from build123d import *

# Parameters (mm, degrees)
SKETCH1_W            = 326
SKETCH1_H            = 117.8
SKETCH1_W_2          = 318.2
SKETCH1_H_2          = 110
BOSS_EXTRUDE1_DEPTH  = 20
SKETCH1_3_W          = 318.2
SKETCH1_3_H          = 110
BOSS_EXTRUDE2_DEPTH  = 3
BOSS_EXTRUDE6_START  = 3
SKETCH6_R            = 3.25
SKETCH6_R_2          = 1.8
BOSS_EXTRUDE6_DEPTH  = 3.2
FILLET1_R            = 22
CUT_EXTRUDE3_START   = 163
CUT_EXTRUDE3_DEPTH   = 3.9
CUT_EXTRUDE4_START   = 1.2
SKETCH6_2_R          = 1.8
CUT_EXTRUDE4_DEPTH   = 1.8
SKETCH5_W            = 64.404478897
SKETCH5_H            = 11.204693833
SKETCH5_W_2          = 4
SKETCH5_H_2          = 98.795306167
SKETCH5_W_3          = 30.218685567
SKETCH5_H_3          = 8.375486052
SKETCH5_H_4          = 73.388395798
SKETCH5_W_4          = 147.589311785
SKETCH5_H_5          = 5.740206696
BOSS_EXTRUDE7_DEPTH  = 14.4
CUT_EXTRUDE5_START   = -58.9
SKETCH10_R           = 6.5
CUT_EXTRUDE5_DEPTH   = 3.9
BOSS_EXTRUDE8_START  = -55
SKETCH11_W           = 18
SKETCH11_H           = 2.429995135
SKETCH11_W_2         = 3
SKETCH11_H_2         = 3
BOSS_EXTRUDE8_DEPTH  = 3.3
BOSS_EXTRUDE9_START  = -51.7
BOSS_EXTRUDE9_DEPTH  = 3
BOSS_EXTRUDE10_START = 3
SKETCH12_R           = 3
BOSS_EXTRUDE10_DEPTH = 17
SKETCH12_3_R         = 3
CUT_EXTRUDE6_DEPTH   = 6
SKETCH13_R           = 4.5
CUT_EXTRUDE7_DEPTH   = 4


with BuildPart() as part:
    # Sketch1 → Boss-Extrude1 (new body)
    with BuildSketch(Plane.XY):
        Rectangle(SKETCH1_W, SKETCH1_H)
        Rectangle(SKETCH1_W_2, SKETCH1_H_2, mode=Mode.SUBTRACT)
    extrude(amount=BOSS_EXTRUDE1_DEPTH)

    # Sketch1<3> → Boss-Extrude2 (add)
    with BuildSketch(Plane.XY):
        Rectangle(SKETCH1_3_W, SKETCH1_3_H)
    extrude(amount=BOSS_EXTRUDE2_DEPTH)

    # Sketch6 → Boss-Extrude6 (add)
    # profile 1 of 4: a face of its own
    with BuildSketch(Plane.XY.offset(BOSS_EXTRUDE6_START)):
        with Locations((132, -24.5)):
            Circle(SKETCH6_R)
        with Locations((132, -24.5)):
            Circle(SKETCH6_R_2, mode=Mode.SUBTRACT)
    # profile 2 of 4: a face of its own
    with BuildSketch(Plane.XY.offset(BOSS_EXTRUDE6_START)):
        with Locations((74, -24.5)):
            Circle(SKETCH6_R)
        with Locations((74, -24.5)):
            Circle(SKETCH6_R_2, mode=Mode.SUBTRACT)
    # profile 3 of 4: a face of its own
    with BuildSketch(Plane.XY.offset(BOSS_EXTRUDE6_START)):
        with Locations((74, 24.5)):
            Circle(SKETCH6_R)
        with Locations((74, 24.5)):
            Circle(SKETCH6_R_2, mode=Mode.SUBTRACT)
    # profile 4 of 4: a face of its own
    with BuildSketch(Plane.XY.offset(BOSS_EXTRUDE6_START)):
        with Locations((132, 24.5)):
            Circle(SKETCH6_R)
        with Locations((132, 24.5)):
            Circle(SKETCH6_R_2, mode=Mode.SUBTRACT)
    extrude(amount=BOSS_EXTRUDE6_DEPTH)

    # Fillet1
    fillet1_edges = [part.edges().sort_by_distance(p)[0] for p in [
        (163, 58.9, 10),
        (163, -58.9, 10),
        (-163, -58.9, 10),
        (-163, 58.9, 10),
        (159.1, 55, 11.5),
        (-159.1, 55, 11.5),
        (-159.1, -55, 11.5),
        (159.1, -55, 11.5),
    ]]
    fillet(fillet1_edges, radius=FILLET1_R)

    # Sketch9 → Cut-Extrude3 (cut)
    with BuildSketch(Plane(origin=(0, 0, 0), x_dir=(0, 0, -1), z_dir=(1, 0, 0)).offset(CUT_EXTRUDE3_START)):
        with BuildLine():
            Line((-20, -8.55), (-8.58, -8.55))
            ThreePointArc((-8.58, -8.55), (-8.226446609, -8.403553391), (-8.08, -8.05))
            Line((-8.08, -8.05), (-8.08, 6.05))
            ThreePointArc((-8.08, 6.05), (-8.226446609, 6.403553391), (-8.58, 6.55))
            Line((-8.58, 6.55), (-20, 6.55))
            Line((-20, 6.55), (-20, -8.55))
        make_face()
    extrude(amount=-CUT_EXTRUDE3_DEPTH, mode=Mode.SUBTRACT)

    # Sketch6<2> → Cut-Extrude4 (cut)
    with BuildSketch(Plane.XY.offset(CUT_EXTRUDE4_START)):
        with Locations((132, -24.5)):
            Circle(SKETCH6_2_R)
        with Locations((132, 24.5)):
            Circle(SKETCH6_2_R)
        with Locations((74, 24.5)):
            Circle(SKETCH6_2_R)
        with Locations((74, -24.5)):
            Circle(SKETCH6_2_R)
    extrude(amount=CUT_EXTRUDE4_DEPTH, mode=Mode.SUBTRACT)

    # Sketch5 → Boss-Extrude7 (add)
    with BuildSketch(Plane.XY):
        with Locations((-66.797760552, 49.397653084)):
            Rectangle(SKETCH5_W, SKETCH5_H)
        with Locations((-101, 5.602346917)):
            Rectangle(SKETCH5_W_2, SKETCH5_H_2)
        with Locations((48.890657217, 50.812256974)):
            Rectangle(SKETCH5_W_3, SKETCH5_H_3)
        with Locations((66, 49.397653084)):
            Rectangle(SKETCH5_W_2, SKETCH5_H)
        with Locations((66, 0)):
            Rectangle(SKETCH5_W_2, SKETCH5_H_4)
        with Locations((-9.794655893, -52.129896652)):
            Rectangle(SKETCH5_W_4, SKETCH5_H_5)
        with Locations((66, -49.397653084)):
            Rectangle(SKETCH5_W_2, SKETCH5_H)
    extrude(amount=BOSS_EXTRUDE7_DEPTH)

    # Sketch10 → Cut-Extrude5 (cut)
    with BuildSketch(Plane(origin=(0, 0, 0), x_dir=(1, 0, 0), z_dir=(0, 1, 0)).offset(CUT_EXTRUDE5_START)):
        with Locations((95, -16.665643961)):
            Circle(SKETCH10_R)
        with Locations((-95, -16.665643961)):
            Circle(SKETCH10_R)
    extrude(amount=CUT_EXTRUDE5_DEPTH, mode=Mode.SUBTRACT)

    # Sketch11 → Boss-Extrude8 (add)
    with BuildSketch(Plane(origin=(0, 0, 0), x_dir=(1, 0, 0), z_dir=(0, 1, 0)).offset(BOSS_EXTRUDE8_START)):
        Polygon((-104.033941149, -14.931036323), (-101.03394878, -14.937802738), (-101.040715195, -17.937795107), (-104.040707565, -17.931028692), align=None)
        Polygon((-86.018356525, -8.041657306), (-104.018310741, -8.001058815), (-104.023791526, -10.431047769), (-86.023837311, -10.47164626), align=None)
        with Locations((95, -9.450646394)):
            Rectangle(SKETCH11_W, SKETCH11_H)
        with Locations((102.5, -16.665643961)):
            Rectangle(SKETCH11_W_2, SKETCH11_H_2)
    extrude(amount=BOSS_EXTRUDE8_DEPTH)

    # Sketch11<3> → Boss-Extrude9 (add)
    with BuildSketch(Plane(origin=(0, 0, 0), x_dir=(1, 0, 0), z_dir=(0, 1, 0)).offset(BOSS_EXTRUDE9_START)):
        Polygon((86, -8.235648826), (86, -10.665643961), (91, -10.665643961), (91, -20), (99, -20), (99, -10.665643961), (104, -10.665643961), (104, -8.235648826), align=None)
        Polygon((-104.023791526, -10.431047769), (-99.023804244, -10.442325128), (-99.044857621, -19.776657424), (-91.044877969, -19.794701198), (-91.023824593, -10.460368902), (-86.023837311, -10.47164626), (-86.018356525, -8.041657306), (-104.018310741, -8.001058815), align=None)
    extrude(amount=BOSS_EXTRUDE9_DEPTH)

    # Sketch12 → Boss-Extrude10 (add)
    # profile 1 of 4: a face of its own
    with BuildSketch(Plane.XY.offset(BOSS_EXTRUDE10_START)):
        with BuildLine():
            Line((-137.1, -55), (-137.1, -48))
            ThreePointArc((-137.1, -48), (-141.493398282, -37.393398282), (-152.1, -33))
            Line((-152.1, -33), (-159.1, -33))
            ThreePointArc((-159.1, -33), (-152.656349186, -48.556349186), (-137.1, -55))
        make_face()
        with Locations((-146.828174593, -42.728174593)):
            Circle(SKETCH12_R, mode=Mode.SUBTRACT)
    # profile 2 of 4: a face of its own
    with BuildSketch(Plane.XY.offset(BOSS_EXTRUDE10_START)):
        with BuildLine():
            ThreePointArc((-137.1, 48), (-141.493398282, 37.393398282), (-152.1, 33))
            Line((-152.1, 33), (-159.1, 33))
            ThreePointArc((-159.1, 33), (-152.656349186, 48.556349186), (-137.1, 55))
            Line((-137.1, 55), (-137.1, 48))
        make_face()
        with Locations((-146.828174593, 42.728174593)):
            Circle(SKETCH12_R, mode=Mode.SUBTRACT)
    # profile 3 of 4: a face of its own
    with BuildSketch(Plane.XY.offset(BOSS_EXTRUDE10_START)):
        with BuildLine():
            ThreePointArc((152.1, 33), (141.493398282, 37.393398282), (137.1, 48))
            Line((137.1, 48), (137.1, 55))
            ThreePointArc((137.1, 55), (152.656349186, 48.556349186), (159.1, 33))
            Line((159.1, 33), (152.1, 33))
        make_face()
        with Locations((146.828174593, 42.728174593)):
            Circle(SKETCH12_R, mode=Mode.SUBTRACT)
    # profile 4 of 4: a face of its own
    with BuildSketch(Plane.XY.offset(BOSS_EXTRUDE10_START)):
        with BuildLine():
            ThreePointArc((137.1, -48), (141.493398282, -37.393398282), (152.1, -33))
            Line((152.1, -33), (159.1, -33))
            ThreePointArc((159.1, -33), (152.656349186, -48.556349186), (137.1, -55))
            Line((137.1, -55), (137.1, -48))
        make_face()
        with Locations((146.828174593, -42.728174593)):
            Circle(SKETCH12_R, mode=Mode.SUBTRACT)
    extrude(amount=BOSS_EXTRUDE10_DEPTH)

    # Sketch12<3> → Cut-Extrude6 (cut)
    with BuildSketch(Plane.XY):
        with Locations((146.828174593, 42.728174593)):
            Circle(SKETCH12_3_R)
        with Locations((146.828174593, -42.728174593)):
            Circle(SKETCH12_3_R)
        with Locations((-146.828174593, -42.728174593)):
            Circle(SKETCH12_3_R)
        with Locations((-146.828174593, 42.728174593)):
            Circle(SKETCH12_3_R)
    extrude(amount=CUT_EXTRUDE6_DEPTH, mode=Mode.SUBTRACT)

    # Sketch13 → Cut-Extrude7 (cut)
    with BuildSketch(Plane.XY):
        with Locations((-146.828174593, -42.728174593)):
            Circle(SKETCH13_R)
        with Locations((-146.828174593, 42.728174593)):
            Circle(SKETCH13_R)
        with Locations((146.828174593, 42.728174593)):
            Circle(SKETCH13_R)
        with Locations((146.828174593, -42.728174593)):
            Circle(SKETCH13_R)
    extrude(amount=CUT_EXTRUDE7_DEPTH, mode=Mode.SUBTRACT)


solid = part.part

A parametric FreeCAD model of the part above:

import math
import FreeCAD as App
import Part
import Sketcher
Q = App.Units.Quantity


def edges_at(feature, points):
    """Names of the edges that pass closest to the given points."""
    edges = feature.Shape.Edges
    near = lambda p: min(range(len(edges)), key=lambda i: edges[i].distToShape(Part.Vertex(*p))[0])
    return sorted({f"Edge{near(p) + 1}" for p in points})


def add_polygon(sketch, points):
    """Adds a closed chain of lines whose ends are joined by coincident constraints."""
    first, n = sketch.GeometryCount, len(points)
    for a, b in zip(points, points[1:] + points[:1]):
        sketch.addGeometry(Part.LineSegment(App.Vector(*a, 0), App.Vector(*b, 0)), False)
    for i in range(n):
        sketch.addConstraint(Sketcher.Constraint("Coincident", first + i, 2, first + (i + 1) % n, 1))

doc = App.newDocument("Part")
body = doc.addObject("PartDesign::Body", "Body")

# Sketch on XY plane
sketch1 = body.newObject("Sketcher::SketchObject", "Sketch")
sketch1.AttachmentSupport = (doc.getObject("XY_Plane"), [""])
sketch1.MapMode = "FlatFace"
add_polygon(sketch1, [(-163, 59), (-163, -59), (163, -59), (163, 59)])  # lines 0-3
add_polygon(sketch1, [(159, -55), (-159, -55), (-159, 55), (159, 55)])  # lines 4-7
sketch1.addConstraint(Sketcher.Constraint("Vertical", 0))
sketch1.addConstraint(Sketcher.Constraint("Horizontal", 1))
sketch1.addConstraint(Sketcher.Constraint("Vertical", 2))
sketch1.addConstraint(Sketcher.Constraint("Horizontal", 3))
sketch1.addConstraint(Sketcher.Constraint("Horizontal", 4))
sketch1.addConstraint(Sketcher.Constraint("Vertical", 5))
sketch1.addConstraint(Sketcher.Constraint("Horizontal", 6))
sketch1.addConstraint(Sketcher.Constraint("Vertical", 7))
sketch1.addConstraint(Sketcher.Constraint("Symmetric", 0, 2, 2, 2, -1, 1))
sketch1.addConstraint(Sketcher.Constraint("Symmetric", 4, 2, 6, 2, -1, 1))
sketch1.addConstraint(Sketcher.Constraint("DistanceX", 1, 1, 1, 2, Q("326 mm")))
sketch1.addConstraint(Sketcher.Constraint("DistanceY", 5, 1, 5, 2, Q("110 mm")))
sketch1.addConstraint(Sketcher.Constraint("DistanceX", 4, 2, 4, 1, Q("318.2 mm")))
sketch1.addConstraint(Sketcher.Constraint("DistanceY", 0, 2, 0, 1, Q("117.8 mm")))
pad1 = body.newObject("PartDesign::Pad", "Pad")
pad1.Profile = sketch1
pad1.Length = 20

# Sketch on XY plane
sketch2 = body.newObject("Sketcher::SketchObject", "Sketch001")
sketch2.AttachmentSupport = (doc.getObject("XY_Plane"), [""])
sketch2.MapMode = "FlatFace"
add_polygon(sketch2, [(-159, 55), (-159, -55), (159, -55), (159, 55)])  # lines 0-3
sketch2.addConstraint(Sketcher.Constraint("Vertical", 0))
sketch2.addConstraint(Sketcher.Constraint("Horizontal", 1))
sketch2.addConstraint(Sketcher.Constraint("Vertical", 2))
sketch2.addConstraint(Sketcher.Constraint("Horizontal", 3))
sketch2.addConstraint(Sketcher.Constraint("Symmetric", 0, 2, 2, 2, -1, 1))
sketch2.addConstraint(Sketcher.Constraint("DistanceY", 0, 2, 0, 1, Q("110 mm")))
sketch2.addConstraint(Sketcher.Constraint("DistanceX", 1, 1, 1, 2, Q("318.2 mm")))
pad2 = body.newObject("PartDesign::Pad", "Pad001")
pad2.Profile = sketch2
pad2.Length = 3

# Sketch on XY plane
sketch3 = body.newObject("Sketcher::SketchObject", "Sketch002")
sketch3.AttachmentSupport = (doc.getObject("XY_Plane"), [""])
sketch3.MapMode = "FlatFace"
sketch3.AttachmentOffset = App.Placement(App.Vector(0, 0, 3), App.Rotation())
sketch3.addGeometry(Part.Circle(App.Vector(132, -24.5, 0), App.Vector(0, 0, 1), 3.2), False)
sketch3.addGeometry(Part.Circle(App.Vector(132, -24.5, 0), App.Vector(0, 0, 1), 1.8), False)
sketch3.addGeometry(Part.Circle(App.Vector(74, -24.5, 0), App.Vector(0, 0, 1), 3.2), False)
sketch3.addGeometry(Part.Circle(App.Vector(74, -24.5, 0), App.Vector(0, 0, 1), 1.8), False)
sketch3.addGeometry(Part.Circle(App.Vector(74, 24.5, 0), App.Vector(0, 0, 1), 3.2), False)
sketch3.addGeometry(Part.Circle(App.Vector(74, 24.5, 0), App.Vector(0, 0, 1), 1.8), False)
sketch3.addGeometry(Part.Circle(App.Vector(132, 24.5, 0), App.Vector(0, 0, 1), 3.2), False)
sketch3.addGeometry(Part.Circle(App.Vector(132, 24.5, 0), App.Vector(0, 0, 1), 1.8), False)
sketch3.addConstraint(Sketcher.Constraint("Coincident", 1, 3, 0, 3))
sketch3.addConstraint(Sketcher.Constraint("Coincident", 3, 3, 2, 3))
sketch3.addConstraint(Sketcher.Constraint("Coincident", 5, 3, 4, 3))
sketch3.addConstraint(Sketcher.Constraint("Coincident", 7, 3, 6, 3))
sketch3.addConstraint(Sketcher.Constraint("Equal", 0, 2))
sketch3.addConstraint(Sketcher.Constraint("Equal", 1, 3))
sketch3.addConstraint(Sketcher.Constraint("Equal", 2, 4))
sketch3.addConstraint(Sketcher.Constraint("Equal", 3, 5))
sketch3.addConstraint(Sketcher.Constraint("Equal", 4, 6))
sketch3.addConstraint(Sketcher.Constraint("Equal", 5, 7))
sketch3.addConstraint(Sketcher.Constraint("Symmetric", 2, 3, 4, 3, -1))
sketch3.addConstraint(Sketcher.Constraint("Symmetric", 0, 3, 6, 3, -1))
sketch3.addConstraint(Sketcher.Constraint("Horizontal", 1, 3, 2, 3))
sketch3.addConstraint(Sketcher.Constraint("Diameter", 0, Q("6.5 mm")))
sketch3.addConstraint(Sketcher.Constraint("Diameter", 1, Q("3.6 mm")))
sketch3.addConstraint(Sketcher.Constraint("DistanceX", -1, 1, 0, 3, Q("132 mm")))
sketch3.addConstraint(Sketcher.Constraint("DistanceX", -1, 1, 2, 3, Q("74 mm")))
sketch3.addConstraint(Sketcher.Constraint("DistanceY", 2, 3, 4, 3, Q("49 mm")))
pad3 = body.newObject("PartDesign::Pad", "Pad002")
pad3.Profile = sketch3
pad3.Length = 3.2
doc.recompute()

fillet = body.newObject("PartDesign::Fillet", "Fillet")
fillet.Base = (pad3, edges_at(pad3, [
    (163, 58.9, 10),
    (163, -58.9, 10),
    (-163, -58.9, 10),
    (-163, 58.9, 10),
    (159.1, 55, 11.5),
    (-159.1, 55, 11.5),
    (-159.1, -55, 11.5),
    (159.1, -55, 11.5),
]))
fillet.Radius = 22

# Sketch on YZ plane
sketch4 = body.newObject("Sketcher::SketchObject", "Sketch003")
sketch4.AttachmentSupport = (doc.getObject("YZ_Plane"), [""])
sketch4.MapMode = "FlatFace"
sketch4.AttachmentOffset = App.Placement(App.Vector(0, 0, 163), App.Rotation())
sketch4.addGeometry(Part.LineSegment(App.Vector(-8.55, 20, 0), App.Vector(-8.55, 8.58, 0)), False)
sketch4.addGeometry(Part.ArcOfCircle(Part.Circle(App.Vector(-8.05, 8.58, 0), App.Vector(0, 0, 1), 0.5), math.radians(180), math.radians(270)), False)
sketch4.addGeometry(Part.LineSegment(App.Vector(-8.05, 8.08, 0), App.Vector(6.05, 8.08, 0)), False)
sketch4.addGeometry(Part.ArcOfCircle(Part.Circle(App.Vector(6.05, 8.58, 0), App.Vector(0, 0, 1), 0.5), math.radians(-90), math.radians(0)), False)
sketch4.addGeometry(Part.LineSegment(App.Vector(6.55, 8.58, 0), App.Vector(6.55, 20, 0)), False)
sketch4.addGeometry(Part.LineSegment(App.Vector(6.55, 20, 0), App.Vector(-8.55, 20, 0)), False)
sketch4.addConstraint(Sketcher.Constraint("Tangent", 0, 2, 1, 1))
sketch4.addConstraint(Sketcher.Constraint("Tangent", 1, 2, 2, 1))
sketch4.addConstraint(Sketcher.Constraint("Tangent", 2, 2, 3, 1))
sketch4.addConstraint(Sketcher.Constraint("Tangent", 3, 2, 4, 1))
sketch4.addConstraint(Sketcher.Constraint("Coincident", 4, 2, 5, 1))
sketch4.addConstraint(Sketcher.Constraint("Coincident", 5, 2, 0, 1))
sketch4.addConstraint(Sketcher.Constraint("Vertical", 0))
sketch4.addConstraint(Sketcher.Constraint("Horizontal", 2))
sketch4.addConstraint(Sketcher.Constraint("Vertical", 4))
sketch4.addConstraint(Sketcher.Constraint("Horizontal", 5))
sketch4.addConstraint(Sketcher.Constraint("Equal", 1, 3))
sketch4.addConstraint(Sketcher.Constraint("Radius", 1, Q("0.5 mm")))
sketch4.addConstraint(Sketcher.Constraint("DistanceX", 2, 1, 2, 2, Q("14.1 mm")))
sketch4.addConstraint(Sketcher.Constraint("DistanceY", -1, 1, 4, 2, Q("20 mm")))
sketch4.addConstraint(Sketcher.Constraint("DistanceY", 0, 2, 0, 1, Q("11.42 mm")))
sketch4.addConstraint(Sketcher.Constraint("DistanceX", 1, 3, -1, 1, Q("8.05 mm")))
pocket1 = body.newObject("PartDesign::Pocket", "Pocket")
pocket1.Profile = sketch4
pocket1.Length = 3.9

# Sketch on XY plane
sketch5 = body.newObject("Sketcher::SketchObject", "Sketch004")
sketch5.AttachmentSupport = (doc.getObject("XY_Plane"), [""])
sketch5.MapMode = "FlatFace"
sketch5.AttachmentOffset = App.Placement(App.Vector(0, 0, 1.2), App.Rotation())
sketch5.addGeometry(Part.Circle(App.Vector(132, -24.5, 0), App.Vector(0, 0, 1), 1.8), False)
sketch5.addGeometry(Part.Circle(App.Vector(132, 24.5, 0), App.Vector(0, 0, 1), 1.8), False)
sketch5.addGeometry(Part.Circle(App.Vector(74, 24.5, 0), App.Vector(0, 0, 1), 1.8), False)
sketch5.addGeometry(Part.Circle(App.Vector(74, -24.5, 0), App.Vector(0, 0, 1), 1.8), False)
sketch5.addConstraint(Sketcher.Constraint("Equal", 0, 1))
sketch5.addConstraint(Sketcher.Constraint("Equal", 1, 2))
sketch5.addConstraint(Sketcher.Constraint("Equal", 2, 3))
sketch5.addConstraint(Sketcher.Constraint("Symmetric", 0, 3, 1, 3, -1))
sketch5.addConstraint(Sketcher.Constraint("Symmetric", 2, 3, 3, 3, -1))
sketch5.addConstraint(Sketcher.Constraint("Horizontal", 1, 3, 2, 3))
sketch5.addConstraint(Sketcher.Constraint("Diameter", 0, Q("3.6 mm")))
sketch5.addConstraint(Sketcher.Constraint("DistanceX", -1, 1, 0, 3, Q("132 mm")))
sketch5.addConstraint(Sketcher.Constraint("DistanceX", -1, 1, 2, 3, Q("74 mm")))
sketch5.addConstraint(Sketcher.Constraint("DistanceY", 0, 3, 1, 3, Q("49 mm")))
pocket2 = body.newObject("PartDesign::Pocket", "Pocket001")
pocket2.Profile = sketch5
pocket2.Length = 1.8
pocket2.Reversed = True

# Sketch on XY plane
sketch6 = body.newObject("Sketcher::SketchObject", "Sketch005")
sketch6.AttachmentSupport = (doc.getObject("XY_Plane"), [""])
sketch6.MapMode = "FlatFace"
add_polygon(sketch6, [(-99, 43.8), (-34.6, 43.8), (-34.6, 55), (-103, 55), (-103, -43.8), (-99, -43.8)])  # lines 0-5
add_polygon(sketch6, [(33.8, 55), (33.8, 46.6), (64, 46.6), (64, 43.8), (68, 43.8), (68, 55), (64, 55)])  # lines 6-12
add_polygon(sketch6, [(64, 36.7), (64, -36.7), (68, -36.7), (68, 36.7)])  # lines 13-16
add_polygon(sketch6, [(-83.6, -49.3), (-83.6, -55), (64, -55), (68, -55), (68, -43.8), (64, -43.8), (64, -49.3)])  # lines 17-23
sketch6.addConstraint(Sketcher.Constraint("Horizontal", 0))
sketch6.addConstraint(Sketcher.Constraint("Vertical", 1))
sketch6.addConstraint(Sketcher.Constraint("Horizontal", 2))
sketch6.addConstraint(Sketcher.Constraint("Vertical", 3))
sketch6.addConstraint(Sketcher.Constraint("Horizontal", 4))
sketch6.addConstraint(Sketcher.Constraint("Vertical", 5))
sketch6.addConstraint(Sketcher.Constraint("Vertical", 6))
sketch6.addConstraint(Sketcher.Constraint("Horizontal", 7))
sketch6.addConstraint(Sketcher.Constraint("Vertical", 8))
sketch6.addConstraint(Sketcher.Constraint("Horizontal", 9))
sketch6.addConstraint(Sketcher.Constraint("Vertical", 10))
sketch6.addConstraint(Sketcher.Constraint("Horizontal", 11))
sketch6.addConstraint(Sketcher.Constraint("Horizontal", 12))
sketch6.addConstraint(Sketcher.Constraint("Vertical", 13))
sketch6.addConstraint(Sketcher.Constraint("Horizontal", 14))
sketch6.addConstraint(Sketcher.Constraint("Vertical", 15))
sketch6.addConstraint(Sketcher.Constraint("Horizontal", 16))
sketch6.addConstraint(Sketcher.Constraint("Vertical", 17))
sketch6.addConstraint(Sketcher.Constraint("Horizontal", 18))
sketch6.addConstraint(Sketcher.Constraint("Horizontal", 19))
sketch6.addConstraint(Sketcher.Constraint("Vertical", 20))
sketch6.addConstraint(Sketcher.Constraint("Horizontal", 21))
sketch6.addConstraint(Sketcher.Constraint("Vertical", 22))
sketch6.addConstraint(Sketcher.Constraint("Horizontal", 23))
sketch6.addConstraint(Sketcher.Constraint("Symmetric", 11, 2, 18, 2, -1))
sketch6.addConstraint(Sketcher.Constraint("Symmetric", 9, 2, 20, 2, -1))
sketch6.addConstraint(Sketcher.Constraint("Horizontal", 5, 2, 8, 2))
sketch6.addConstraint(Sketcher.Constraint("Horizontal", 2, 2, 10, 2))
sketch6.addConstraint(Sketcher.Constraint("Horizontal", 4, 2, 20, 2))
sketch6.addConstraint(Sketcher.Constraint("Vertical", 8, 2, 11, 2))
sketch6.addConstraint(Sketcher.Constraint("Vertical", 11, 2, 13, 2))
sketch6.addConstraint(Sketcher.Constraint("Vertical", 10, 2, 14, 2))
sketch6.addConstraint(Sketcher.Constraint("Vertical", 18, 2, 21, 2))
sketch6.addConstraint(Sketcher.Constraint("Equal", 4, 9))
sketch6.addConstraint(Sketcher.Constraint("DistanceX", 4, 1, 4, 2, Q("4 mm")))
sketch6.addConstraint(Sketcher.Constraint("DistanceY", -1, 1, 1, 2, Q("55 mm")))
sketch6.addConstraint(Sketcher.Constraint("DistanceX", 2, 2, -1, 1, Q("103 mm")))
sketch6.addConstraint(Sketcher.Constraint("DistanceX", -1, 1, 7, 2, Q("64 mm")))
sketch6.addConstraint(Sketcher.Constraint("DistanceX", 0, 1, 0, 2, Q("64.404479 mm")))
sketch6.addConstraint(Sketcher.Constraint("DistanceX", 18, 1, 18, 2, Q("147.589312 mm")))
sketch6.addConstraint(Sketcher.Constraint("DistanceY", 23, 2, 5, 2, Q("93.055099 mm")))
sketch6.addConstraint(Sketcher.Constraint("DistanceX", 7, 1, 7, 2, Q("30.218686 mm")))
sketch6.addConstraint(Sketcher.Constraint("DistanceY", 1, 1, 1, 2, Q("11.204694 mm")))
sketch6.addConstraint(Sketcher.Constraint("DistanceY", 6, 2, 6, 1, Q("8.375486 mm")))
sketch6.addConstraint(Sketcher.Constraint("DistanceY", 13, 2, 13, 1, Q("73.388396 mm")))
sketch6.addConstraint(Sketcher.Constraint("DistanceY", 13, 2, 7, 2, Q("83.318712 mm")))
pad4 = body.newObject("PartDesign::Pad", "Pad003")
pad4.Profile = sketch6
pad4.Length = 14.4

# Sketch on XZ plane
sketch7 = body.newObject("Sketcher::SketchObject", "Sketch006")
sketch7.AttachmentSupport = (doc.getObject("XZ_Plane"), [""])
sketch7.MapMode = "FlatFace"
sketch7.AttachmentOffset = App.Placement(App.Vector(0, 0, 58.9), App.Rotation())
sketch7.addGeometry(Part.Circle(App.Vector(95, 17, 0), App.Vector(0, 0, 1), 6), False)
sketch7.addGeometry(Part.Circle(App.Vector(-95, 17, 0), App.Vector(0, 0, 1), 6), False)
sketch7.addConstraint(Sketcher.Constraint("Equal", 0, 1))
sketch7.addConstraint(Sketcher.Constraint("Symmetric", 0, 3, 1, 3, -2))
sketch7.addConstraint(Sketcher.Constraint("Diameter", 0, Q("13 mm")))
sketch7.addConstraint(Sketcher.Constraint("DistanceX", -1, 1, 0, 3, Q("95 mm")))
sketch7.addConstraint(Sketcher.Constraint("DistanceY", -1, 1, 0, 3, Q("16.665644 mm")))
pocket3 = body.newObject("PartDesign::Pocket", "Pocket002")
pocket3.Profile = sketch7
pocket3.Length = 3.9

# Sketch on XZ plane
sketch8 = body.newObject("Sketcher::SketchObject", "Sketch007")
sketch8.AttachmentSupport = (doc.getObject("XZ_Plane"), [""])
sketch8.MapMode = "FlatFace"
sketch8.AttachmentOffset = App.Placement(App.Vector(0, 0, 55), App.Rotation())
add_polygon(sketch8, [(-101, 14.9), (-104, 14.9), (-104, 17.9), (-101, 17.9)])  # lines 0-3
add_polygon(sketch8, [(-86, 8), (-104, 8), (-104, 10.4), (-86, 10.5)])  # lines 4-7
add_polygon(sketch8, [(86, 8.2), (86, 10.7), (104, 10.7), (104, 8.2)])  # lines 8-11
add_polygon(sketch8, [(101, 15.2), (101, 18.2), (104, 18.2), (104, 15.2)])  # lines 12-15
sketch8.addConstraint(Sketcher.Constraint("Vertical", 8))
sketch8.addConstraint(Sketcher.Constraint("Horizontal", 9))
sketch8.addConstraint(Sketcher.Constraint("Vertical", 10))
sketch8.addConstraint(Sketcher.Constraint("Horizontal", 11))
sketch8.addConstraint(Sketcher.Constraint("Vertical", 12))
sketch8.addConstraint(Sketcher.Constraint("Horizontal", 13))
sketch8.addConstraint(Sketcher.Constraint("Vertical", 14))
sketch8.addConstraint(Sketcher.Constraint("Horizontal", 15))
sketch8.addConstraint(Sketcher.Constraint("Perpendicular", 0, 1))
sketch8.addConstraint(Sketcher.Constraint("Perpendicular", 1, 2))
sketch8.addConstraint(Sketcher.Constraint("Perpendicular", 2, 3))
sketch8.addConstraint(Sketcher.Constraint("Perpendicular", 3, 4))
sketch8.addConstraint(Sketcher.Constraint("Perpendicular", 4, 5))
sketch8.addConstraint(Sketcher.Constraint("Perpendicular", 5, 6))
sketch8.addConstraint(Sketcher.Constraint("Perpendicular", 6, 7))
sketch8.addConstraint(Sketcher.Constraint("Vertical", 10, 2, 13, 2))
sketch8.addConstraint(Sketcher.Constraint("Equal", 15, 12))
sketch8.addConstraint(Sketcher.Constraint("Equal", 0, 1))
sketch8.addConstraint(Sketcher.Constraint("DistanceX", 9, 1, 9, 2, Q("18 mm")))
sketch8.addConstraint(Sketcher.Constraint("DistanceX", 13, 1, 13, 2, Q("3 mm")))
sketch8.addConstraint(Sketcher.Constraint("Distance", 0, Q("3 mm")))
sketch8.addConstraint(Sketcher.Constraint("Distance", 4, Q("18 mm")))
sketch8.addConstraint(Sketcher.Constraint("DistanceX", -1, 1, 8, 2, Q("86 mm")))
sketch8.addConstraint(Sketcher.Constraint("DistanceY", 9, 2, 12, 2, Q("7.5 mm")))
sketch8.addConstraint(Sketcher.Constraint("DistanceY", 5, 2, 6, 2, Q("0.040598 mm")))
sketch8.addConstraint(Sketcher.Constraint("DistanceY", 8, 1, 8, 2, Q("2.429995 mm")))
sketch8.addConstraint(Sketcher.Constraint("DistanceX", 0, 2, -1, 1, Q("104.033941 mm")))
sketch8.addConstraint(Sketcher.Constraint("DistanceY", -1, 1, 1, 2, Q("17.931029 mm")))
sketch8.addConstraint(Sketcher.Constraint("DistanceX", 4, 2, -1, 1, Q("104.018311 mm")))
sketch8.addConstraint(Sketcher.Constraint("DistanceY", -1, 1, 4, 2, Q("8.001059 mm")))
sketch8.addConstraint(Sketcher.Constraint("DistanceY", -1, 1, 10, 2, Q("8.235649 mm")))
sketch8.addConstraint(Sketcher.Constraint("DistanceY", 4, 2, 5, 2, Q("2.429989 mm")))
pad5 = body.newObject("PartDesign::Pad", "Pad004")
pad5.Profile = sketch8
pad5.Length = 3.3
pad5.Reversed = True

# Sketch on XZ plane
sketch9 = body.newObject("Sketcher::SketchObject", "Sketch008")
sketch9.AttachmentSupport = (doc.getObject("XZ_Plane"), [""])
sketch9.MapMode = "FlatFace"
sketch9.AttachmentOffset = App.Placement(App.Vector(0, 0, 51.7), App.Rotation())
add_polygon(sketch9, [(86, 8.2), (86, 10.7), (91, 10.7), (91, 20), (99, 20), (99, 10.7), (104, 10.7), (104, 8.2)])  # lines 0-7
add_polygon(sketch9, [(-104, 10.4), (-99, 10.4), (-99, 19.8), (-91, 19.8), (-91, 10.5), (-86, 10.5), (-86, 8), (-104, 8)])  # lines 8-15
sketch9.addConstraint(Sketcher.Constraint("Vertical", 0))
sketch9.addConstraint(Sketcher.Constraint("Horizontal", 1))
sketch9.addConstraint(Sketcher.Constraint("Vertical", 2))
sketch9.addConstraint(Sketcher.Constraint("Horizontal", 3))
sketch9.addConstraint(Sketcher.Constraint("Vertical", 4))
sketch9.addConstraint(Sketcher.Constraint("Horizontal", 5))
sketch9.addConstraint(Sketcher.Constraint("Vertical", 6))
sketch9.addConstraint(Sketcher.Constraint("Horizontal", 7))
sketch9.addConstraint(Sketcher.Constraint("Perpendicular", 8, 9))
sketch9.addConstraint(Sketcher.Constraint("Perpendicular", 9, 10))
sketch9.addConstraint(Sketcher.Constraint("Perpendicular", 10, 11))
sketch9.addConstraint(Sketcher.Constraint("Perpendicular", 11, 12))
sketch9.addConstraint(Sketcher.Constraint("Perpendicular", 12, 13))
sketch9.addConstraint(Sketcher.Constraint("Perpendicular", 13, 14))
sketch9.addConstraint(Sketcher.Constraint("Perpendicular", 14, 15))
sketch9.addConstraint(Sketcher.Constraint("Horizontal", 1, 2, 4, 2))
sketch9.addConstraint(Sketcher.Constraint("Equal", 1, 5))
sketch9.addConstraint(Sketcher.Constraint("Equal", 9, 11))
sketch9.addConstraint(Sketcher.Constraint("Equal", 8, 12))
sketch9.addConstraint(Sketcher.Constraint("DistanceX", 1, 1, 1, 2, Q("5 mm")))
sketch9.addConstraint(Sketcher.Constraint("DistanceX", 3, 1, 3, 2, Q("8 mm")))
sketch9.addConstraint(Sketcher.Constraint("Distance", 8, Q("5 mm")))
sketch9.addConstraint(Sketcher.Constraint("Distance", 10, Q("8 mm")))
sketch9.addConstraint(Sketcher.Constraint("DistanceX", -1, 1, 0, 2, Q("86 mm")))
sketch9.addConstraint(Sketcher.Constraint("DistanceY", -1, 1, 2, 2, Q("20 mm")))
sketch9.addConstraint(Sketcher.Constraint("DistanceY", 13, 2, 9, 2, Q("11.735 mm")))
sketch9.addConstraint(Sketcher.Constraint("DistanceY", -1, 1, 10, 2, Q("19.794701 mm")))
sketch9.addConstraint(Sketcher.Constraint("DistanceX", 9, 2, 13, 2, Q("13.026501 mm")))
sketch9.addConstraint(Sketcher.Constraint("DistanceY", 0, 1, 0, 2, Q("2.429995 mm")))
sketch9.addConstraint(Sketcher.Constraint("DistanceY", 2, 1, 2, 2, Q("9.334356 mm")))
sketch9.addConstraint(Sketcher.Constraint("DistanceY", -1, 1, 11, 2, Q("10.460369 mm")))
sketch9.addConstraint(Sketcher.Constraint("DistanceX", 14, 2, -1, 1, Q("104.018311 mm")))
pad6 = body.newObject("PartDesign::Pad", "Pad005")
pad6.Profile = sketch9
pad6.Length = 3
pad6.Reversed = True

# Sketch on XY plane
sketch10 = body.newObject("Sketcher::SketchObject", "Sketch009")
sketch10.AttachmentSupport = (doc.getObject("XY_Plane"), [""])
sketch10.MapMode = "FlatFace"
sketch10.AttachmentOffset = App.Placement(App.Vector(0, 0, 3), App.Rotation())
sketch10.addGeometry(Part.LineSegment(App.Vector(-137.1, -55, 0), App.Vector(-137.1, -48, 0)), False)
sketch10.addGeometry(Part.ArcOfCircle(Part.Circle(App.Vector(-152.1, -48, 0), App.Vector(0, 0, 1), 15), math.radians(0), math.radians(90)), False)
sketch10.addGeometry(Part.LineSegment(App.Vector(-152.1, -33, 0), App.Vector(-159.1, -33, 0)), False)
sketch10.addGeometry(Part.ArcOfCircle(Part.Circle(App.Vector(-137.1, -33, 0), App.Vector(0, 0, 1), 22), math.radians(180), math.radians(270)), False)
sketch10.addGeometry(Part.Circle(App.Vector(-146.8, -42.7, 0), App.Vector(0, 0, 1), 3), False)
sketch10.addGeometry(Part.ArcOfCircle(Part.Circle(App.Vector(-152.1, 48, 0), App.Vector(0, 0, 1), 15), math.radians(-90), math.radians(0)), False)
sketch10.addGeometry(Part.LineSegment(App.Vector(-137.1, 48, 0), App.Vector(-137.1, 55, 0)), False)
sketch10.addGeometry(Part.ArcOfCircle(Part.Circle(App.Vector(-137.1, 33, 0), App.Vector(0, 0, 1), 22), math.radians(90), math.radians(180)), False)
sketch10.addGeometry(Part.LineSegment(App.Vector(-159.1, 33, 0), App.Vector(-152.1, 33, 0)), False)
sketch10.addGeometry(Part.Circle(App.Vector(-146.8, 42.7, 0), App.Vector(0, 0, 1), 3), False)
sketch10.addGeometry(Part.ArcOfCircle(Part.Circle(App.Vector(152.1, 48, 0), App.Vector(0, 0, 1), 15), math.radians(180), math.radians(270)), False)
sketch10.addGeometry(Part.LineSegment(App.Vector(152.1, 33, 0), App.Vector(159.1, 33, 0)), False)
sketch10.addGeometry(Part.ArcOfCircle(Part.Circle(App.Vector(137.1, 33, 0), App.Vector(0, 0, 1), 22), math.radians(0), math.radians(90)), False)
sketch10.addGeometry(Part.LineSegment(App.Vector(137.1, 55, 0), App.Vector(137.1, 48, 0)), False)
sketch10.addGeometry(Part.Circle(App.Vector(146.8, 42.7, 0), App.Vector(0, 0, 1), 3), False)
sketch10.addGeometry(Part.ArcOfCircle(Part.Circle(App.Vector(152.1, -48, 0), App.Vector(0, 0, 1), 15), math.radians(90), math.radians(180)), False)
sketch10.addGeometry(Part.LineSegment(App.Vector(137.1, -48, 0), App.Vector(137.1, -55, 0)), False)
sketch10.addGeometry(Part.ArcOfCircle(Part.Circle(App.Vector(137.1, -33, 0), App.Vector(0, 0, 1), 22), math.radians(-90), math.radians(0)), False)
sketch10.addGeometry(Part.LineSegment(App.Vector(159.1, -33, 0), App.Vector(152.1, -33, 0)), False)
sketch10.addGeometry(Part.Circle(App.Vector(146.8, -42.7, 0), App.Vector(0, 0, 1), 3), False)
sketch10.addConstraint(Sketcher.Constraint("Tangent", 0, 2, 1, 1))
sketch10.addConstraint(Sketcher.Constraint("Tangent", 1, 2, 2, 1))
sketch10.addConstraint(Sketcher.Constraint("Coincident", 2, 2, 3, 1))
sketch10.addConstraint(Sketcher.Constraint("Coincident", 3, 2, 0, 1))
sketch10.addConstraint(Sketcher.Constraint("Tangent", 5, 2, 6, 1))
sketch10.addConstraint(Sketcher.Constraint("Coincident", 6, 2, 7, 1))
sketch10.addConstraint(Sketcher.Constraint("Coincident", 7, 2, 8, 1))
sketch10.addConstraint(Sketcher.Constraint("Tangent", 8, 2, 5, 1))
sketch10.addConstraint(Sketcher.Constraint("Tangent", 10, 2, 11, 1))
sketch10.addConstraint(Sketcher.Constraint("Coincident", 11, 2, 12, 1))
sketch10.addConstraint(Sketcher.Constraint("Coincident", 12, 2, 13, 1))
sketch10.addConstraint(Sketcher.Constraint("Tangent", 13, 2, 10, 1))
sketch10.addConstraint(Sketcher.Constraint("Tangent", 15, 2, 16, 1))
sketch10.addConstraint(Sketcher.Constraint("Coincident", 16, 2, 17, 1))
sketch10.addConstraint(Sketcher.Constraint("Coincident", 17, 2, 18, 1))
sketch10.addConstraint(Sketcher.Constraint("Tangent", 18, 2, 15, 1))
sketch10.addConstraint(Sketcher.Constraint("Vertical", 0))
sketch10.addConstraint(Sketcher.Constraint("Horizontal", 2))
sketch10.addConstraint(Sketcher.Constraint("Vertical", 6))
sketch10.addConstraint(Sketcher.Constraint("Horizontal", 8))
sketch10.addConstraint(Sketcher.Constraint("Horizontal", 11))
sketch10.addConstraint(Sketcher.Constraint("Vertical", 13))
sketch10.addConstraint(Sketcher.Constraint("Vertical", 16))
sketch10.addConstraint(Sketcher.Constraint("Horizontal", 18))
sketch10.addConstraint(Sketcher.Constraint("Equal", 1, 5))
sketch10.addConstraint(Sketcher.Constraint("Equal", 3, 7))
sketch10.addConstraint(Sketcher.Constraint("Equal", 4, 9))
sketch10.addConstraint(Sketcher.Constraint("Equal", 5, 10))
sketch10.addConstraint(Sketcher.Constraint("Equal", 7, 12))
sketch10.addConstraint(Sketcher.Constraint("Equal", 9, 14))
sketch10.addConstraint(Sketcher.Constraint("Equal", 10, 15))
sketch10.addConstraint(Sketcher.Constraint("Equal", 12, 17))
sketch10.addConstraint(Sketcher.Constraint("Equal", 14, 19))
sketch10.addConstraint(Sketcher.Constraint("Symmetric", 1, 3, 10, 3, -1, 1))
sketch10.addConstraint(Sketcher.Constraint("Symmetric", 3, 3, 12, 3, -1, 1))
sketch10.addConstraint(Sketcher.Constraint("Symmetric", 4, 3, 14, 3, -1, 1))
sketch10.addConstraint(Sketcher.Constraint("Symmetric", 5, 3, 15, 3, -1, 1))
sketch10.addConstraint(Sketcher.Constraint("Symmetric", 7, 3, 17, 3, -1, 1))
sketch10.addConstraint(Sketcher.Constraint("Symmetric", 9, 3, 19, 3, -1, 1))
sketch10.addConstraint(Sketcher.Constraint("Symmetric", 5, 3, 10, 3, -2))
sketch10.addConstraint(Sketcher.Constraint("Symmetric", 7, 3, 12, 3, -2))
sketch10.addConstraint(Sketcher.Constraint("Symmetric", 9, 3, 14, 3, -2))
sketch10.addConstraint(Sketcher.Constraint("Horizontal", 17, 3, 1, 2))
sketch10.addConstraint(Sketcher.Constraint("Vertical", 7, 3, 0, 2))
sketch10.addConstraint(Sketcher.Constraint("Diameter", 4, Q("6 mm")))
sketch10.addConstraint(Sketcher.Constraint("Radius", 1, Q("15 mm")))
sketch10.addConstraint(Sketcher.Constraint("Radius", 3, Q("22 mm")))
sketch10.addConstraint(Sketcher.Constraint("DistanceY", 1, 3, -1, 1, Q("48 mm")))
sketch10.addConstraint(Sketcher.Constraint("DistanceX", 1, 3, -1, 1, Q("152.1 mm")))
sketch10.addConstraint(Sketcher.Constraint("DistanceY", 4, 3, 9, 3, Q("85.456349 mm")))
sketch10.addConstraint(Sketcher.Constraint("DistanceX", 9, 3, 14, 3, Q("293.656349 mm")))
pad7 = body.newObject("PartDesign::Pad", "Pad006")
pad7.Profile = sketch10
pad7.Length = 17

# Sketch on XY plane
sketch11 = body.newObject("Sketcher::SketchObject", "Sketch010")
sketch11.AttachmentSupport = (doc.getObject("XY_Plane"), [""])
sketch11.MapMode = "FlatFace"
sketch11.addGeometry(Part.Circle(App.Vector(146.8, 42.7, 0), App.Vector(0, 0, 1), 3), False)
sketch11.addGeometry(Part.Circle(App.Vector(146.8, -42.7, 0), App.Vector(0, 0, 1), 3), False)
sketch11.addGeometry(Part.Circle(App.Vector(-146.8, -42.7, 0), App.Vector(0, 0, 1), 3), False)
sketch11.addGeometry(Part.Circle(App.Vector(-146.8, 42.7, 0), App.Vector(0, 0, 1), 3), False)
sketch11.addConstraint(Sketcher.Constraint("Equal", 0, 1))
sketch11.addConstraint(Sketcher.Constraint("Equal", 1, 2))
sketch11.addConstraint(Sketcher.Constraint("Equal", 2, 3))
sketch11.addConstraint(Sketcher.Constraint("Symmetric", 0, 3, 2, 3, -1, 1))
sketch11.addConstraint(Sketcher.Constraint("Symmetric", 1, 3, 3, 3, -1, 1))
sketch11.addConstraint(Sketcher.Constraint("Symmetric", 1, 3, 2, 3, -2))
sketch11.addConstraint(Sketcher.Constraint("Diameter", 0, Q("6 mm")))
sketch11.addConstraint(Sketcher.Constraint("DistanceY", 1, 3, 0, 3, Q("85.456349 mm")))
sketch11.addConstraint(Sketcher.Constraint("DistanceX", 2, 3, 1, 3, Q("293.656349 mm")))
pocket4 = body.newObject("PartDesign::Pocket", "Pocket003")
pocket4.Profile = sketch11
pocket4.Length = 6
pocket4.Reversed = True

# Sketch on XY plane
sketch12 = body.newObject("Sketcher::SketchObject", "Sketch011")
sketch12.AttachmentSupport = (doc.getObject("XY_Plane"), [""])
sketch12.MapMode = "FlatFace"
sketch12.addGeometry(Part.Circle(App.Vector(-146.8, -42.7, 0), App.Vector(0, 0, 1), 4.5), False)
sketch12.addGeometry(Part.Circle(App.Vector(-146.8, 42.7, 0), App.Vector(0, 0, 1), 4.5), False)
sketch12.addGeometry(Part.Circle(App.Vector(146.8, 42.7, 0), App.Vector(0, 0, 1), 4.5), False)
sketch12.addGeometry(Part.Circle(App.Vector(146.8, -42.7, 0), App.Vector(0, 0, 1), 4.5), False)
sketch12.addConstraint(Sketcher.Constraint("Equal", 0, 1))
sketch12.addConstraint(Sketcher.Constraint("Equal", 1, 2))
sketch12.addConstraint(Sketcher.Constraint("Equal", 2, 3))
sketch12.addConstraint(Sketcher.Constraint("Symmetric", 0, 3, 2, 3, -1, 1))
sketch12.addConstraint(Sketcher.Constraint("Symmetric", 1, 3, 3, 3, -1, 1))
sketch12.addConstraint(Sketcher.Constraint("Symmetric", 1, 3, 2, 3, -2))
sketch12.addConstraint(Sketcher.Constraint("Diameter", 0, Q("9 mm")))
sketch12.addConstraint(Sketcher.Constraint("DistanceY", 0, 3, 1, 3, Q("85.456349 mm")))
sketch12.addConstraint(Sketcher.Constraint("DistanceX", 1, 3, 2, 3, Q("293.656349 mm")))
pocket5 = body.newObject("PartDesign::Pocket", "Pocket004")
pocket5.Profile = sketch12
pocket5.Length = 4
pocket5.Reversed = True

doc.recompute()
